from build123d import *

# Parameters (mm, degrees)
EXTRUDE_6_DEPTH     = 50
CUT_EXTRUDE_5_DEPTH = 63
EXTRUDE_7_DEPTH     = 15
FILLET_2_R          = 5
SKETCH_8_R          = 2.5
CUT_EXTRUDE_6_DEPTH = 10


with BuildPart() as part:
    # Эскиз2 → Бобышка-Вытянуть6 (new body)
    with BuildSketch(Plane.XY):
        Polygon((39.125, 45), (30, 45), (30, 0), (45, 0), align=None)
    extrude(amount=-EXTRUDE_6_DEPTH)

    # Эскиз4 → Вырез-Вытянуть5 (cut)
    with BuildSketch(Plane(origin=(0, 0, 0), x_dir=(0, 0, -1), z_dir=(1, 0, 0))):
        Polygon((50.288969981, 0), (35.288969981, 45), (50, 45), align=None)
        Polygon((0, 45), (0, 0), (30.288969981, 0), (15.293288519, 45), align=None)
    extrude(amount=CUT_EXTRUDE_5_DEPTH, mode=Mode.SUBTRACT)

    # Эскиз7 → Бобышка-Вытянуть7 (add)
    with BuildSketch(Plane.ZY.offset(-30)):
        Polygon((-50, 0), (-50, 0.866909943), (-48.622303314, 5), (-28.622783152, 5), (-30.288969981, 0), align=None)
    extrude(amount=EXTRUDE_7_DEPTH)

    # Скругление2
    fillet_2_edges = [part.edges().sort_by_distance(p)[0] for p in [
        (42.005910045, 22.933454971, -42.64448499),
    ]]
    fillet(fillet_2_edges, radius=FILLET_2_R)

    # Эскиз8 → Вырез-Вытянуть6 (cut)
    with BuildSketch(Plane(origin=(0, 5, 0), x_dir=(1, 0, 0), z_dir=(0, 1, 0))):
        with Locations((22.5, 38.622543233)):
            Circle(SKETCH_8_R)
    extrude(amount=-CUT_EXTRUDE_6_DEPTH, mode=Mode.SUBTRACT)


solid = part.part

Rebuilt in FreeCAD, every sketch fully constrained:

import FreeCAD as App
import Part
import Sketcher
from FreeCAD import Vector
Q = App.Units.Quantity


def edges_at(feature, points):
    """Names of the edges that pass closest to the given points."""
    edges = feature.Shape.Edges
    near = lambda p: min(range(len(edges)), key=lambda i: edges[i].distToShape(Part.Vertex(*p))[0])
    return sorted({f"Edge{near(p) + 1}" for p in points})


def add_polygon(sketch, points):
    """Adds a closed chain of lines whose ends are joined by coincident constraints."""
    first, n = sketch.GeometryCount, len(points)
    for a, b in zip(points, points[1:] + points[:1]):
        sketch.addGeometry(Part.LineSegment(App.Vector(*a, 0), App.Vector(*b, 0)), False)
    for i in range(n):
        sketch.addConstraint(Sketcher.Constraint("Coincident", first + i, 2, first + (i + 1) % n, 1))

doc = App.newDocument("Part")
body = doc.addObject("PartDesign::Body", "Body")

# Sketch on XY plane
sketch1 = doc.addObject("Sketcher::SketchObject", "Sketch")
body.addObject(sketch1)
sketch1.AttachmentSupport = (doc.XY_Plane, [""])
sketch1.MapMode = "FlatFace"
add_polygon(sketch1, [(39, 45), (30, 45), (30, 0), (45, 0)])  # lines 0-3
sketch1.addConstraint(Sketcher.Constraint("Horizontal", 0))
sketch1.addConstraint(Sketcher.Constraint("Vertical", 1))
sketch1.addConstraint(Sketcher.Constraint("Horizontal", 2))
sketch1.addConstraint(Sketcher.Constraint("PointOnObject", 1, 2, -1))
sketch1.addConstraint(Sketcher.Constraint("DistanceX", 2, 1, 2, 2, Q("15 mm")))
sketch1.addConstraint(Sketcher.Constraint("DistanceY", 1, 2, 1, 1, Q("45 mm")))
sketch1.addConstraint(Sketcher.Constraint("DistanceX", -1, 1, 0, 2, Q("30 mm")))
sketch1.addConstraint(Sketcher.Constraint("DistanceX", 0, 2, 0, 1, Q("9.125 mm")))
pad1 = doc.addObject("PartDesign::Pad", "Pad")
body.addObject(pad1)
pad1.Profile = sketch1
pad1.Length = 50
pad1.Reversed = True

# Sketch on YZ plane
sketch2 = doc.addObject("Sketcher::SketchObject", "Sketch001")
body.addObject(sketch2)
sketch2.AttachmentSupport = (doc.YZ_Plane, [""])
sketch2.MapMode = "FlatFace"
add_polygon(sketch2, [(45, -35), (0, -50), (45, -50)])  # lines 0-2
add_polygon(sketch2, [(45, 0), (0, 0), (0, -30), (45, -15)])  # lines 3-6
sketch2.addConstraint(Sketcher.Constraint("Vertical", 2))
sketch2.addConstraint(Sketcher.Constraint("Horizontal", 3))
sketch2.addConstraint(Sketcher.Constraint("Vertical", 4))
sketch2.addConstraint(Sketcher.Constraint("Vertical", 6))
sketch2.addConstraint(Sketcher.Constraint("Coincident", 3, 2, -1, 1))
sketch2.addConstraint(Sketcher.Constraint("PointOnObject", 0, 2, -2))
sketch2.addConstraint(Sketcher.Constraint("Vertical", 2, 2, 5, 2))
sketch2.addConstraint(Sketcher.Constraint("DistanceX", 3, 2, 3, 1, Q("45 mm")))
sketch2.addConstraint(Sketcher.Constraint("DistanceY", 1, 2, -1, 1, Q("50 mm")))
sketch2.addConstraint(Sketcher.Constraint("DistanceY", 0, 2, 2, 2, Q("15 mm")))
sketch2.addConstraint(Sketcher.Constraint("DistanceY", 0, 2, 4, 2, Q("20 mm")))
sketch2.addConstraint(Sketcher.Constraint("Angle", 5, Q("18.43 deg")))
sketch2.addConstraint(Sketcher.Constraint("DistanceY", 2, 1, 2, 2, Q("14.71103 mm")))
pocket1 = doc.addObject("PartDesign::Pocket", "Pocket")
body.addObject(pocket1)
pocket1.Profile = sketch2
pocket1.Length = 63
pocket1.Reversed = True

# Sketch on YZ plane
sketch3 = doc.addObject("Sketcher::SketchObject", "Sketch002")
body.addObject(sketch3)
sketch3.AttachmentSupport = (doc.YZ_Plane, [""])
sketch3.MapMode = "FlatFace"
sketch3.AttachmentOffset = App.Placement(Vector(0, 0, 30), App.Rotation())
add_polygon(sketch3, [(0.9, -50), (0, -50), (0, -30.3), (5, -28.6), (5, -48.6)])  # lines 0-4
sketch3.addConstraint(Sketcher.Constraint("Horizontal", 0))
sketch3.addConstraint(Sketcher.Constraint("Vertical", 1))
sketch3.addConstraint(Sketcher.Constraint("Vertical", 3))
sketch3.addConstraint(Sketcher.Constraint("PointOnObject", 0, 2, -2))
sketch3.addConstraint(Sketcher.Constraint("DistanceY", 0, 2, -1, 1, Q("50 mm")))
sketch3.addConstraint(Sketcher.Constraint("DistanceX", -1, 1, 2, 2, Q("5 mm")))
sketch3.addConstraint(Sketcher.Constraint("Angle", 2, Q("18.43 deg")))
sketch3.addConstraint(Sketcher.Constraint("DistanceX", 0, 2, 0, 1, Q("0.86691 mm")))
sketch3.addConstraint(Sketcher.Constraint("DistanceY", 1, 1, 1, 2, Q("19.71103 mm")))
sketch3.addConstraint(Sketcher.Constraint("DistanceY", 3, 2, 3, 1, Q("19.99952 mm")))
pad2 = doc.addObject("PartDesign::Pad", "Pad001")
body.addObject(pad2)
pad2.Profile = sketch3
pad2.Length = 15
pad2.Reversed = True
doc.recompute()

fillet = doc.addObject("PartDesign::Fillet", "Fillet")
body.addObject(fillet)
fillet.Base = (pad2, edges_at(pad2, [(42.006, 22.933, -42.644)]))
fillet.Radius = 5

# Sketch on XZ plane
sketch4 = doc.addObject("Sketcher::SketchObject", "Sketch003")
body.addObject(sketch4)
sketch4.AttachmentSupport = (doc.XZ_Plane, [""])
sketch4.MapMode = "FlatFace"
sketch4.AttachmentOffset = App.Placement(Vector(0, 0, -5), App.Rotation())
sketch4.addGeometry(Part.Circle(Vector(22.5, -38.6, 0), Vector(0, 0, 1), 2.5), False)
sketch4.addConstraint(Sketcher.Constraint("Diameter", 0, Q("5 mm")))
sketch4.addConstraint(Sketcher.Constraint("DistanceX", -1, 1, 0, 3, Q("22.5 mm")))
sketch4.addConstraint(Sketcher.Constraint("DistanceY", 0, 3, -1, 1, Q("38.622543 mm")))
pocket2 = doc.addObject("PartDesign::Pocket", "Pocket001")
body.addObject(pocket2)
pocket2.Profile = sketch4
pocket2.Length = 10
pocket2.Reversed = True

doc.recompute()
